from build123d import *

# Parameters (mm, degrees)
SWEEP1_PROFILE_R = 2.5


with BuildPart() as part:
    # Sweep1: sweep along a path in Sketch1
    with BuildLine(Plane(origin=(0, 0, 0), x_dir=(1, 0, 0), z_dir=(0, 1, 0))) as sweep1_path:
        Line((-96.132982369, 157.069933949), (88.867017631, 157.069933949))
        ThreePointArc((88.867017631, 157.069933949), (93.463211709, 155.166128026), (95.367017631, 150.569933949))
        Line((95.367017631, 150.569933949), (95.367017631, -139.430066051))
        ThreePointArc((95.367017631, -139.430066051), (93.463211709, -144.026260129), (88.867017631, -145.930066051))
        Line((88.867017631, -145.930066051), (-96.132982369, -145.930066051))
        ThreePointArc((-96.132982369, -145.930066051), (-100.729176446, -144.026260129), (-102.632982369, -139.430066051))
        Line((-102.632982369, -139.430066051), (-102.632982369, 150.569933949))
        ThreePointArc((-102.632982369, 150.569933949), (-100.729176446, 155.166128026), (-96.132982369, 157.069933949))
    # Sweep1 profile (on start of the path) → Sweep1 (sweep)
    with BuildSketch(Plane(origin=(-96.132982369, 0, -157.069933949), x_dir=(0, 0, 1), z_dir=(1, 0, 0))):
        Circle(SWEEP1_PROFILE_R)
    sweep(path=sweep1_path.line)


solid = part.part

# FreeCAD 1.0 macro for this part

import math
import FreeCAD as App
import Part
import Sketcher

doc = App.newDocument("Part")
body = doc.addObject("PartDesign::Body", "Body")

sketch1 = body.newObject("Sketcher::SketchObject", "Sketch")
sketch1.AttachmentSupport = (doc.getObject("YZ_Plane"), [""])
sketch1.MapMode = "FlatFace"
sketch1.AttachmentOffset = App.Placement(App.Vector(0, 0, -96.132982), App.Rotation())
sketch1.addGeometry(Part.Circle(App.Vector(0, -157.1, 0), App.Vector(0, 0, 1), 2.5), False)
sketch1.addConstraint([
    Sketcher.Constraint("PointOnObject", 0, 3, -2),
    Sketcher.Constraint("Diameter", 0, 5.0),
    Sketcher.Constraint("DistanceY", 0, 3, -1, 1, 157.069934),
])

sketch2 = body.newObject("Sketcher::SketchObject", "Sketch001")
sketch2.AttachmentSupport = (doc.getObject("XZ_Plane"), [""])
sketch2.MapMode = "FlatFace"
sketch2.addGeometry([
    Part.LineSegment(App.Vector(-96, -157, 0), App.Vector(89, -157, 0)),
    Part.ArcOfCircle(Part.Circle(App.Vector(89, -151, 0), App.Vector(0, 0, 1), 7), math.radians(-90), math.radians(0)),
    Part.LineSegment(App.Vector(95, -151, 0), App.Vector(95, 139, 0)),
    Part.ArcOfCircle(Part.Circle(App.Vector(89, 139, 0), App.Vector(0, 0, 1), 6), math.radians(0), math.radians(90)),
    Part.LineSegment(App.Vector(89, 146, 0), App.Vector(-96, 146, 0)),
    Part.ArcOfCircle(Part.Circle(App.Vector(-96, 139, 0), App.Vector(0, 0, 1), 7), math.radians(90), math.radians(180)),
    Part.LineSegment(App.Vector(-103, 139, 0), App.Vector(-103, -151, 0)),
    Part.ArcOfCircle(Part.Circle(App.Vector(-96, -151, 0), App.Vector(0, 0, 1), 7), math.radians(-180), math.radians(-90)),
], False)
sketch2.addConstraint([
    Sketcher.Constraint("Tangent", 0, 2, 1, 1),
    Sketcher.Constraint("Tangent", 1, 2, 2, 1),
    Sketcher.Constraint("Tangent", 2, 2, 3, 1),
    Sketcher.Constraint("Tangent", 3, 2, 4, 1),
    Sketcher.Constraint("Tangent", 4, 2, 5, 1),
    Sketcher.Constraint("Tangent", 5, 2, 6, 1),
    Sketcher.Constraint("Tangent", 6, 2, 7, 1),
    Sketcher.Constraint("Tangent", 7, 2, 0, 1),
    Sketcher.Constraint("Horizontal", 0),
    Sketcher.Constraint("Vertical", 2),
    Sketcher.Constraint("Horizontal", 4),
    Sketcher.Constraint("Vertical", 6),
    Sketcher.Constraint("Equal", 1, 3),
    Sketcher.Constraint("Equal", 3, 5),
    Sketcher.Constraint("Equal", 5, 7),
    Sketcher.Constraint("Radius", 1, 6.5),
    Sketcher.Constraint("DistanceX", 0, 1, 0, 2, 185.0),
    Sketcher.Constraint("DistanceY", 2, 1, 2, 2, 290.0),
    Sketcher.Constraint("DistanceX", -1, 1, 1, 3, 88.867018),
    Sketcher.Constraint("DistanceY", 1, 3, -1, 1, 150.569934),
])
doc.recompute()

additivepipe = body.newObject("PartDesign::AdditivePipe", "AdditivePipe")
additivepipe.Profile = sketch1
additivepipe.Spine = (sketch2, ["Edge1", "Edge2", "Edge3", "Edge4", "Edge5", "Edge6", "Edge7", "Edge8"])

doc.recompute()
